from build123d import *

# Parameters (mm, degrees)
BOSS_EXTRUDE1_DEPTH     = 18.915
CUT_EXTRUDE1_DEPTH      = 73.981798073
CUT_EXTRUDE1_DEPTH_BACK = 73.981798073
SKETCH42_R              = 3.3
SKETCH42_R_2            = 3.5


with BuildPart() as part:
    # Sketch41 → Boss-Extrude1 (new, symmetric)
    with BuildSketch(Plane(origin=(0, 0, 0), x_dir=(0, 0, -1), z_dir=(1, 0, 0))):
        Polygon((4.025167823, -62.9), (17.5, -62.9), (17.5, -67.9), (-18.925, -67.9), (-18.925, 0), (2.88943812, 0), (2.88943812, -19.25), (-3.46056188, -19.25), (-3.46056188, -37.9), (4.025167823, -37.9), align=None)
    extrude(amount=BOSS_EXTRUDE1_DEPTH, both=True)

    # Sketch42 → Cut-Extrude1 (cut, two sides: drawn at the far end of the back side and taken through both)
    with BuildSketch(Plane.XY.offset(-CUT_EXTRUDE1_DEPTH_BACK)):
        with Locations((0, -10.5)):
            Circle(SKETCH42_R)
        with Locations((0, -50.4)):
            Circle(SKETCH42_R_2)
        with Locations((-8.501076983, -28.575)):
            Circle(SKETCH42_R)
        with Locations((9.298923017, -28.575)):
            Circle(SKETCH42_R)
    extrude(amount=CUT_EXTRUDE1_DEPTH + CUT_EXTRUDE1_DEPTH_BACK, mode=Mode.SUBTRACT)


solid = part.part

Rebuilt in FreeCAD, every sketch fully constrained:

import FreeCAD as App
import Part
import Sketcher

V = App.Vector

doc = App.newDocument("Part")
params = doc.addObject("Spreadsheet::Sheet", "Params")
for row, (alias, value) in enumerate([
    ("sketch1_width", "25 mm"),
    ("sketch1_width2", "5 mm"),
    ("sketch1_width3", "67.9 mm"),
    ("sketch1_width4", "18.65 mm"),
    ("sketch1_height", "6.35 mm"),
    ("pad1_length", "37.83 mm"),
    ("sketch2_diameter", "7 mm"),
    ("sketch2_diameter2", "6.6 mm"),
], start=1):
    params.set(f"A{row}", alias)
    params.set(f"B{row}", "=" + value)
    params.setAlias(f"B{row}", alias)

body = doc.addObject("PartDesign::Body", "Body")

# Sketch on YZ plane
sketch1 = doc.addObject("Sketcher::SketchObject", "Sketch")
body.addObject(sketch1)
sketch1.AttachmentSupport = (doc.YZ_Plane, [""])
sketch1.MapMode = "FlatFace"
sketch1.addGeometry([
    Part.LineSegment(V(-63, -18, 0), V(-63, -4, 0)),  # 0
    Part.LineSegment(V(-63, -4, 0), V(-38, -4, 0)),  # 1
    Part.LineSegment(V(-38, -4, 0), V(-38, 3, 0)),  # 2
    Part.LineSegment(V(-38, 3, 0), V(-19, 3, 0)),  # 3
    Part.LineSegment(V(-19, 3, 0), V(-19, -3, 0)),  # 4
    Part.LineSegment(V(-19, -3, 0), V(0, -3, 0)),  # 5
    Part.LineSegment(V(0, -3, 0), V(0, 19, 0)),  # 6
    Part.LineSegment(V(0, 19, 0), V(-68, 19, 0)),  # 7
    Part.LineSegment(V(-68, 19, 0), V(-68, -18, 0)),  # 8
    Part.LineSegment(V(-68, -18, 0), V(-63, -18, 0)),  # 9
], False)
sketch1.addConstraint([
    Sketcher.Constraint("Coincident", 0, 2, 1, 1),
    Sketcher.Constraint("Coincident", 1, 2, 2, 1),
    Sketcher.Constraint("Coincident", 2, 2, 3, 1),
    Sketcher.Constraint("Coincident", 3, 2, 4, 1),
    Sketcher.Constraint("Coincident", 4, 2, 5, 1),
    Sketcher.Constraint("Coincident", 5, 2, 6, 1),
    Sketcher.Constraint("Coincident", 6, 2, 7, 1),
    Sketcher.Constraint("Coincident", 7, 2, 8, 1),
    Sketcher.Constraint("Coincident", 8, 2, 9, 1),
    Sketcher.Constraint("Coincident", 9, 2, 0, 1),
    Sketcher.Constraint("Vertical", 0),
    Sketcher.Constraint("Horizontal", 1),
    Sketcher.Constraint("Vertical", 2),
    Sketcher.Constraint("Horizontal", 3),
    Sketcher.Constraint("Vertical", 4),
    Sketcher.Constraint("Horizontal", 5),
    Sketcher.Constraint("Vertical", 6),
    Sketcher.Constraint("Horizontal", 7),
    Sketcher.Constraint("Vertical", 8),
    Sketcher.Constraint("Horizontal", 9),
    Sketcher.Constraint("PointOnObject", 5, 2, -2),
    Sketcher.Constraint("DistanceX", 1, 1, 1, 2, 25.0),
    Sketcher.Constraint("DistanceX", 9, 1, 9, 2, 5.0),
    Sketcher.Constraint("DistanceX", 7, 2, 7, 1, 67.9),
    Sketcher.Constraint("DistanceX", 3, 1, 3, 2, 18.65),
    Sketcher.Constraint("DistanceY", 4, 2, 4, 1, 6.35),
    Sketcher.Constraint("DistanceY", 8, 2, -1, 1, 17.5),
    Sketcher.Constraint("DistanceY", 8, 2, 8, 1, 36.425),
    Sketcher.Constraint("DistanceY", 2, 1, 2, 2, 7.48573),
    Sketcher.Constraint("DistanceY", 6, 1, 6, 2, 21.814438),
])
sketch1.setExpression("Constraints[21]", "Params.sketch1_width")
sketch1.setExpression("Constraints[22]", "Params.sketch1_width2")
sketch1.setExpression("Constraints[23]", "Params.sketch1_width3")
sketch1.setExpression("Constraints[24]", "Params.sketch1_width4")
sketch1.setExpression("Constraints[25]", "Params.sketch1_height")
pad1 = doc.addObject("PartDesign::Pad", "Pad")
body.addObject(pad1)
pad1.Profile = sketch1
pad1.setExpression("Length", "Params.pad1_length")
pad1.Midplane = True

# Sketch on XY plane
sketch2 = doc.addObject("Sketcher::SketchObject", "Sketch001")
body.addObject(sketch2)
sketch2.AttachmentSupport = (doc.XY_Plane, [""])
sketch2.MapMode = "FlatFace"
sketch2.addGeometry([
    Part.Circle(V(0, -10.5, 0), V(0, 0, 1), 3.3),
    Part.Circle(V(0, -50.4, 0), V(0, 0, 1), 3.5),
    Part.Circle(V(-8.5, -28.6, 0), V(0, 0, 1), 3.3),
    Part.Circle(V(9.3, -28.6, 0), V(0, 0, 1), 3.3),
], False)
sketch2.addConstraint([
    Sketcher.Constraint("Equal", 0, 2),
    Sketcher.Constraint("Equal", 2, 3),
    Sketcher.Constraint("PointOnObject", 0, 3, -2),
    Sketcher.Constraint("PointOnObject", 1, 3, -2),
    Sketcher.Constraint("Horizontal", 2, 3, 3, 3),
    Sketcher.Constraint("Diameter", 1, 7.0),
    Sketcher.Constraint("Diameter", 0, 6.6),
    Sketcher.Constraint("DistanceY", 0, 3, -1, 1, 10.5),
    Sketcher.Constraint("DistanceY", 1, 3, -1, 1, 50.4),
    Sketcher.Constraint("DistanceX", 2, 3, 3, 3, 17.8),
    Sketcher.Constraint("DistanceY", 2, 3, -1, 1, 28.575),
    Sketcher.Constraint("DistanceX", 2, 3, -1, 1, 8.501077),
])
sketch2.setExpression("Constraints[5]", "Params.sketch2_diameter")
sketch2.setExpression("Constraints[6]", "Params.sketch2_diameter2")
pocket1 = doc.addObject("PartDesign::Pocket", "Pocket")
body.addObject(pocket1)
pocket1.Profile = sketch2
pocket1.Type = "ThroughAll"
pocket1.Midplane = True

doc.recompute()
